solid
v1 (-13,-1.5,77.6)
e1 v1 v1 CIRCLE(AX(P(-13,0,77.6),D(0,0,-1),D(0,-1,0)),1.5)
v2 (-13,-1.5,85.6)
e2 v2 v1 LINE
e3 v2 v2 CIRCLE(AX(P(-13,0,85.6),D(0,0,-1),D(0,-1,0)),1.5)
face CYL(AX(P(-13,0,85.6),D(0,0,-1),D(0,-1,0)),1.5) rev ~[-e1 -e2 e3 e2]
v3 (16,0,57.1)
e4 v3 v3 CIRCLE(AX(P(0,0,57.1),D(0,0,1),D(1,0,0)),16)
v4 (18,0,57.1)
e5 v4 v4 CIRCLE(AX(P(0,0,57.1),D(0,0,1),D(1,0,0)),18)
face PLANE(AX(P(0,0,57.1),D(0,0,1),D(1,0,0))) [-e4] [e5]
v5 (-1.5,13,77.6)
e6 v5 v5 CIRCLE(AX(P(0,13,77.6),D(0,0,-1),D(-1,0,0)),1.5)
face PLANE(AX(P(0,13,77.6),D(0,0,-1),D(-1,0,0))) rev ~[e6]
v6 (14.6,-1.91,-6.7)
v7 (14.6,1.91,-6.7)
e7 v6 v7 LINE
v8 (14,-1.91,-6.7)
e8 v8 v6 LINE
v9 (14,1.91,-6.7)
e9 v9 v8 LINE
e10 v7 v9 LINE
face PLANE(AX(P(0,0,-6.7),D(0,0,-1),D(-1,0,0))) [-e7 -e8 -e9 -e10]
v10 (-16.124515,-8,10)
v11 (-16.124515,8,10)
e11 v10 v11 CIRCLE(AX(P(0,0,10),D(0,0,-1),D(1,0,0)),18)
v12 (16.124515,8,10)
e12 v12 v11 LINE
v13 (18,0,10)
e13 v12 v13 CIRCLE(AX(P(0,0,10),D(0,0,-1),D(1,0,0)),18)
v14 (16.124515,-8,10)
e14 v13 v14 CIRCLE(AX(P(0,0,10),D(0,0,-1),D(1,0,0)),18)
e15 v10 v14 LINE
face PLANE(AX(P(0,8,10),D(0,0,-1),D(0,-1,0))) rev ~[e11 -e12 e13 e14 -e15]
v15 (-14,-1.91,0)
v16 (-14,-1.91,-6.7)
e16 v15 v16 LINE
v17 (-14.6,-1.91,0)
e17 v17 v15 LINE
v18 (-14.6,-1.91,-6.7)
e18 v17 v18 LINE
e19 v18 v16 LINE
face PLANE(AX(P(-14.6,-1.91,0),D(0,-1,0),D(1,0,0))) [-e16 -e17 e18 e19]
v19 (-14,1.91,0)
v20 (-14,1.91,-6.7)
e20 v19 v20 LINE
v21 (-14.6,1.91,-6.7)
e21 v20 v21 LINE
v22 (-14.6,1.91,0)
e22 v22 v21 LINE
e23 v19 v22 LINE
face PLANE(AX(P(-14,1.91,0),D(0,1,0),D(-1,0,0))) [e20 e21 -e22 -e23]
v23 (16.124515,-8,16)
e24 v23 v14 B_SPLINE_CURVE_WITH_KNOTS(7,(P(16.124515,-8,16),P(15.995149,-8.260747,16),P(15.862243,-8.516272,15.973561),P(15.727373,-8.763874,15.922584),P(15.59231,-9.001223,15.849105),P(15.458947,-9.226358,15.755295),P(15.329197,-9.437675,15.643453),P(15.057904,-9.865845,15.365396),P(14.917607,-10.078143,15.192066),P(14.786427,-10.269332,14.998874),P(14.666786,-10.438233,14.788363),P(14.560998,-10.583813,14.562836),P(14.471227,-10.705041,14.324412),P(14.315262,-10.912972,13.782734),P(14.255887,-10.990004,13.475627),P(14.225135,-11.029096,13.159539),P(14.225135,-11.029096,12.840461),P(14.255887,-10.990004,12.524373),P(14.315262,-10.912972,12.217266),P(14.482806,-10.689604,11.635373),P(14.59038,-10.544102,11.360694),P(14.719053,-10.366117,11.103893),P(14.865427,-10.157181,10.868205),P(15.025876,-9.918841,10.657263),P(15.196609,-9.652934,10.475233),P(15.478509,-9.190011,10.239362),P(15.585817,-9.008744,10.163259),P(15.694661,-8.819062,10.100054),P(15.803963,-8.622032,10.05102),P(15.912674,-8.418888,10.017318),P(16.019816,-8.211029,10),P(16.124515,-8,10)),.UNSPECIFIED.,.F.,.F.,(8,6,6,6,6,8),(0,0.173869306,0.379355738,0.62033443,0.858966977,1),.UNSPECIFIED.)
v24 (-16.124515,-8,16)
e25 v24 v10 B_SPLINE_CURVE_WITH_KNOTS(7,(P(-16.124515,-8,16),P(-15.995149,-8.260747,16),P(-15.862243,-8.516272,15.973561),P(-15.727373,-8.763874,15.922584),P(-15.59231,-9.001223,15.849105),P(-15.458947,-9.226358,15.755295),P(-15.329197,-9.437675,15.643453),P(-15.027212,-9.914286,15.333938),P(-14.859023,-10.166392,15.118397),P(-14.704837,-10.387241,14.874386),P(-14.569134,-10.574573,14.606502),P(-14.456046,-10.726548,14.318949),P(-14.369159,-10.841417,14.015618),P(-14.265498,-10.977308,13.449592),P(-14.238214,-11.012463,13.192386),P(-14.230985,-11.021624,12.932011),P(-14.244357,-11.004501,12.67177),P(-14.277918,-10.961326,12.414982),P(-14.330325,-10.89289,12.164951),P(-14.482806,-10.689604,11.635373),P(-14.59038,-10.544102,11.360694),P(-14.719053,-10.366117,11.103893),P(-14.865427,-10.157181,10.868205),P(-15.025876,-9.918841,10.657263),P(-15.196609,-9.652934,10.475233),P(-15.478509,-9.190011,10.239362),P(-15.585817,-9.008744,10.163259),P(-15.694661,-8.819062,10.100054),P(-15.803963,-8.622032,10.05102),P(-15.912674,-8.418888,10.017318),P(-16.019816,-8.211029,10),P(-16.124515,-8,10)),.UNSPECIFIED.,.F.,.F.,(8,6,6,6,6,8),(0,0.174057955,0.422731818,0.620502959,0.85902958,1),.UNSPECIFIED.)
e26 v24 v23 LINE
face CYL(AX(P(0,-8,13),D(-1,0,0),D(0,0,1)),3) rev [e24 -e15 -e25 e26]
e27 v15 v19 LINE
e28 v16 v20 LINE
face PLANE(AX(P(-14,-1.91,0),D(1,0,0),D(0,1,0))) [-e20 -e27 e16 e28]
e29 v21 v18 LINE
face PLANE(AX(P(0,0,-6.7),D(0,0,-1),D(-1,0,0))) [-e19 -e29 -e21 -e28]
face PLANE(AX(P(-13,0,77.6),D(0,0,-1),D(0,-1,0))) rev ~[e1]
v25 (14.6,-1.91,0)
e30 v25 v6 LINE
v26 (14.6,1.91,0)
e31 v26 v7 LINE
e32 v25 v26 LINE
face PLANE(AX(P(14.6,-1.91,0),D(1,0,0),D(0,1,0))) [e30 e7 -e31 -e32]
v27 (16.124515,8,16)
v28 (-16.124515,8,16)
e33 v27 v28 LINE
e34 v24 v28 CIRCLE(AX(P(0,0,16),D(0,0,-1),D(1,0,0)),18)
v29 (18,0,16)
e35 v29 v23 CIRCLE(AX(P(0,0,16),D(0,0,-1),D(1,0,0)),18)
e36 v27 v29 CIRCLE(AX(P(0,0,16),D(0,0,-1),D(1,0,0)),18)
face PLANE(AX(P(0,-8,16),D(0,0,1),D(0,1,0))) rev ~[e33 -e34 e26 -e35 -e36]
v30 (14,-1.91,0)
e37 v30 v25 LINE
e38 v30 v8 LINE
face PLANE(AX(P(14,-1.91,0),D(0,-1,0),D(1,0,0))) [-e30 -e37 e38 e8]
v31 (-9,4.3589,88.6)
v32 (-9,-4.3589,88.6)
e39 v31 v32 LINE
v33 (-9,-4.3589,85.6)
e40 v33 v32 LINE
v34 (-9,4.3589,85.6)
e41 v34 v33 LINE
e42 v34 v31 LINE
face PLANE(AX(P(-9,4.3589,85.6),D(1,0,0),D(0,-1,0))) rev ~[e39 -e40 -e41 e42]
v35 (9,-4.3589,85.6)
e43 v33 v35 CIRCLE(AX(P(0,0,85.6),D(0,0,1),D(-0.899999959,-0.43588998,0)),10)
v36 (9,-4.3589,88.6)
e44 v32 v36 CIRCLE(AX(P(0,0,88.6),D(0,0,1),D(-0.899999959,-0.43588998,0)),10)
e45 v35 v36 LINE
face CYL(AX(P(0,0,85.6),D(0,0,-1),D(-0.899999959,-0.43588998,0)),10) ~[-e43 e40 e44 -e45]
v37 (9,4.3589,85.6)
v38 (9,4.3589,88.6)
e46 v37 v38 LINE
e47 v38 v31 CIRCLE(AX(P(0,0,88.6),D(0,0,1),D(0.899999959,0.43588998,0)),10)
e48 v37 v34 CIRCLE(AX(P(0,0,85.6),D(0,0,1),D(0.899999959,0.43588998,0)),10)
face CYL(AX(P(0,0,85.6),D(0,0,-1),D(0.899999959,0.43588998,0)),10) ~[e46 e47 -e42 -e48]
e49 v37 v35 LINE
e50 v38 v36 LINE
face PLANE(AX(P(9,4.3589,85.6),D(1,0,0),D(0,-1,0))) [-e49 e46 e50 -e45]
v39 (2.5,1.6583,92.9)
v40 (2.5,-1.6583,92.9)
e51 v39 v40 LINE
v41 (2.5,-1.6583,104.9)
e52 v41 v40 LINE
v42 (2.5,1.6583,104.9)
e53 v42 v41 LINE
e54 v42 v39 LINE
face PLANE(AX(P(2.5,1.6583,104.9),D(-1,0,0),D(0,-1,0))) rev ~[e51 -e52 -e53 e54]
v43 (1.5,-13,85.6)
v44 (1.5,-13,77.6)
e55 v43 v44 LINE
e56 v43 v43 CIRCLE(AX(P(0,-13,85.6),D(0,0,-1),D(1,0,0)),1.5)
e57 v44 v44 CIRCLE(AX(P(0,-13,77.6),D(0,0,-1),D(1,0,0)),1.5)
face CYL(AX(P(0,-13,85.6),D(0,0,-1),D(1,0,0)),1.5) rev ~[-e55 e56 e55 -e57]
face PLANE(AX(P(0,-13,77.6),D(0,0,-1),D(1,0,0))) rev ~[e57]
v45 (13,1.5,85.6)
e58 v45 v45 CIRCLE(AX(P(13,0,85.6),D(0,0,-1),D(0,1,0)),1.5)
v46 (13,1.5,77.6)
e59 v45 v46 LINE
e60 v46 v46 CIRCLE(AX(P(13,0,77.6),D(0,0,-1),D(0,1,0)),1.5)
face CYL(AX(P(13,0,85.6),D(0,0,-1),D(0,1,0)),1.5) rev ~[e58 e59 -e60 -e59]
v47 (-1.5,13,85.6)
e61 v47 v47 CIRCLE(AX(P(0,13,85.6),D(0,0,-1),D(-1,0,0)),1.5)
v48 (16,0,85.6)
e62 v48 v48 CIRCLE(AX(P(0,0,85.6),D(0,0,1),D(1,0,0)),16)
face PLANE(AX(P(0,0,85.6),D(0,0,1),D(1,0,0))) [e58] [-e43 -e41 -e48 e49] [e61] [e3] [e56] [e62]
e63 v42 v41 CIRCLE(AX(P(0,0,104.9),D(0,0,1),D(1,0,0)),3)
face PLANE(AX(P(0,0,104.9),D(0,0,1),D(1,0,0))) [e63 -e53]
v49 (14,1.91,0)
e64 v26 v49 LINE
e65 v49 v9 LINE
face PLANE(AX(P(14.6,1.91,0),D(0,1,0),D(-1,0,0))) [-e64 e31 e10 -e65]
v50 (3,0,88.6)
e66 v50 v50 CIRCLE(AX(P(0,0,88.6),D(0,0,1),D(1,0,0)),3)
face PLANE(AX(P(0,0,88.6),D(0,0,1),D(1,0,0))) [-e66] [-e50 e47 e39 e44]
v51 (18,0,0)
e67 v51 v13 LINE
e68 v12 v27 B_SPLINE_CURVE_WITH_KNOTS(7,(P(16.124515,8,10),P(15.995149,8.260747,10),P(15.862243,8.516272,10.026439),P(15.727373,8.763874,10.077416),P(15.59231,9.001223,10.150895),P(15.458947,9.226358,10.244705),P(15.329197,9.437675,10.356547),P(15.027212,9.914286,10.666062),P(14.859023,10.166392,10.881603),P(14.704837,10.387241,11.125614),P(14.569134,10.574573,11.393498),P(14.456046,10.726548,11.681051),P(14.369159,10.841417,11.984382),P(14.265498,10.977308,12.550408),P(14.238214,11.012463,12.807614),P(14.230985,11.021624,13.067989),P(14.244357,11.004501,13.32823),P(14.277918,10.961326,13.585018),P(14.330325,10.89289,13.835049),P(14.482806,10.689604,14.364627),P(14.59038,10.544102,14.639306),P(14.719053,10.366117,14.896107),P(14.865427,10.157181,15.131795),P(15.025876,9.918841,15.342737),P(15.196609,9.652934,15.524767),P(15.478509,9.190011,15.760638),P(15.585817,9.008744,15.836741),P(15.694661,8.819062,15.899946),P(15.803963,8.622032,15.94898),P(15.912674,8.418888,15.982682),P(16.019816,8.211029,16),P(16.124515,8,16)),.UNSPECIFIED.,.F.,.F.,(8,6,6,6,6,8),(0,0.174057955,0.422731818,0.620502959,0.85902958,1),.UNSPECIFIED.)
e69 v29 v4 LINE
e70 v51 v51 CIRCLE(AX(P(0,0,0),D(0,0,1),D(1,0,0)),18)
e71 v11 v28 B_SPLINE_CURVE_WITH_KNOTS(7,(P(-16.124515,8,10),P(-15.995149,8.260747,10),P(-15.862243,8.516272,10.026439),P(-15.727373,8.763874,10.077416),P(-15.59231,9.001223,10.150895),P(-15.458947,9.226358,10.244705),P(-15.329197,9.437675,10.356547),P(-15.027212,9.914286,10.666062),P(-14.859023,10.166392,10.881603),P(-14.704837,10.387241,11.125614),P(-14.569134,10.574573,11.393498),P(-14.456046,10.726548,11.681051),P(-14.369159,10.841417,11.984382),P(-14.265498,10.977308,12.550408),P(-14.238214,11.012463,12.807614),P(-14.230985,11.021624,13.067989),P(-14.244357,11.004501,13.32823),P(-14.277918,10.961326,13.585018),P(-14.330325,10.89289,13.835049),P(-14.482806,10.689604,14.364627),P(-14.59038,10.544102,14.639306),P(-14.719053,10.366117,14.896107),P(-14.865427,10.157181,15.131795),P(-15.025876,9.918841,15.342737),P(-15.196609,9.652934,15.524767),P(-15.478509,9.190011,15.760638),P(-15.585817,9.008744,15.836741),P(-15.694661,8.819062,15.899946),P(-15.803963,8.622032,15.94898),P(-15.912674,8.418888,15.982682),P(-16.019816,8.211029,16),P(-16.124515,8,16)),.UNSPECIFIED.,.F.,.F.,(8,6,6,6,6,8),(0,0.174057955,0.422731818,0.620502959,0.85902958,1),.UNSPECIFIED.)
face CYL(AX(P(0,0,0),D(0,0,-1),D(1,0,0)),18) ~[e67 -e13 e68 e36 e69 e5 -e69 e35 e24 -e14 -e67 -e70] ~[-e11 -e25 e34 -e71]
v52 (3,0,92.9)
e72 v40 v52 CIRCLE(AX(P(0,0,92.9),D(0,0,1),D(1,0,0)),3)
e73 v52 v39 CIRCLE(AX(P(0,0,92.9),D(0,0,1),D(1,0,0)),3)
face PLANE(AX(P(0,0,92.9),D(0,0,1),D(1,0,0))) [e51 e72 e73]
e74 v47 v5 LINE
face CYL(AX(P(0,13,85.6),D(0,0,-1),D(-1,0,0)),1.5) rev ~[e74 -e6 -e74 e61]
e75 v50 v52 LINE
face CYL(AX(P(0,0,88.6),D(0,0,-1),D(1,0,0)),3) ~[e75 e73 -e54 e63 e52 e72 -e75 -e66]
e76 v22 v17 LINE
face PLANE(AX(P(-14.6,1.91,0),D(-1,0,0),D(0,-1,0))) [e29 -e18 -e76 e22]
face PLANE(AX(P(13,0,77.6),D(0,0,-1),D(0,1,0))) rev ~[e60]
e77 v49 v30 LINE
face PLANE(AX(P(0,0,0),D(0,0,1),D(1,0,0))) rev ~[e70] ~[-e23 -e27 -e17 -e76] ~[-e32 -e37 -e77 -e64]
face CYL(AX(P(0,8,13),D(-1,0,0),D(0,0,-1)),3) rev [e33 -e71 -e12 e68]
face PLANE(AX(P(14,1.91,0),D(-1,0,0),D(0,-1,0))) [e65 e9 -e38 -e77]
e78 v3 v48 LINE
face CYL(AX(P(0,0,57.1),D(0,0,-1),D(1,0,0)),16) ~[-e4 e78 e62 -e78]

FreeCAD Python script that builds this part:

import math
import FreeCAD as App
import Part
import Sketcher

V = App.Vector
Q = App.Units.Quantity

doc = App.newDocument("Part")
body = doc.addObject("PartDesign::Body", "Body")

# Sketch on XY plane
sketch1 = body.newObject("Sketcher::SketchObject", "Sketch")
sketch1.AttachmentSupport = (doc.getObject("XY_Plane"), [""])
sketch1.MapMode = "FlatFace"
sketch1.addGeometry(Part.Circle(V(0, 0, 0), V(0, 0, 1), 18), False)
sketch1.addConstraint([
    Sketcher.Constraint("Coincident", 0, 3, -1, 1),
    Sketcher.Constraint("Diameter", 0, Q("36 mm")),
])
pad1 = body.newObject("PartDesign::Pad", "Pad")
pad1.Profile = sketch1
pad1.Length = 57.1

# Sketch on XY plane
sketch2 = body.newObject("Sketcher::SketchObject", "Sketch001")
sketch2.AttachmentSupport = (doc.getObject("XY_Plane"), [""])
sketch2.MapMode = "FlatFace"
sketch2.AttachmentOffset = App.Placement(V(0, 0, 57.1), App.Rotation())
sketch2.addGeometry(Part.Circle(V(0, 0, 0), V(0, 0, 1), 16), False)
sketch2.addConstraint([
    Sketcher.Constraint("Coincident", 0, 3, -1, 1),
    Sketcher.Constraint("Diameter", 0, Q("32 mm")),
])
pad2 = body.newObject("PartDesign::Pad", "Pad001")
pad2.Profile = sketch2
pad2.Length = 28.5

# Sketch on XY plane
sketch3 = body.newObject("Sketcher::SketchObject", "Sketch002")
sketch3.AttachmentSupport = (doc.getObject("XY_Plane"), [""])
sketch3.MapMode = "FlatFace"
sketch3.AttachmentOffset = App.Placement(V(0, 0, 85.6), App.Rotation())
sketch3.addGeometry([
    Part.ArcOfCircle(Part.Circle(V(0, 0, 0), V(0, 0, 1), 10), math.radians(26), math.radians(154)),
    Part.LineSegment(V(-9, 4, 0), V(-9, -4, 0)),
    Part.ArcOfCircle(Part.Circle(V(0, 0, 0), V(0, 0, 1), 10), math.radians(-154), math.radians(-26)),
    Part.LineSegment(V(9, -4, 0), V(9, 4, 0)),
], False)
sketch3.addConstraint([
    Sketcher.Constraint("Coincident", 0, 2, 1, 1),
    Sketcher.Constraint("Coincident", 1, 2, 2, 1),
    Sketcher.Constraint("Coincident", 2, 2, 3, 1),
    Sketcher.Constraint("Coincident", 3, 2, 0, 1),
    Sketcher.Constraint("Vertical", 1),
    Sketcher.Constraint("Vertical", 3),
    Sketcher.Constraint("Coincident", 0, 3, -1, 1),
    Sketcher.Constraint("Coincident", 2, 3, -1, 1),
    Sketcher.Constraint("Equal", 0, 2),
    Sketcher.Constraint("Horizontal", 1, 2, 2, 2),
    Sketcher.Constraint("Radius", 0, Q("10 mm")),
    Sketcher.Constraint("DistanceX", 0, 2, -1, 1, Q("9 mm")),
])
pad3 = body.newObject("PartDesign::Pad", "Pad002")
pad3.Profile = sketch3
pad3.Length = 3

# Sketch on XY plane
sketch4 = body.newObject("Sketcher::SketchObject", "Sketch003")
sketch4.AttachmentSupport = (doc.getObject("XY_Plane"), [""])
sketch4.MapMode = "FlatFace"
sketch4.AttachmentOffset = App.Placement(V(0, 0, 88.6), App.Rotation())
sketch4.addGeometry(Part.Circle(V(0, 0, 0), V(0, 0, 1), 3), False)
sketch4.addConstraint([
    Sketcher.Constraint("Coincident", 0, 3, -1, 1),
    Sketcher.Constraint("Diameter", 0, Q("6 mm")),
])
pad4 = body.newObject("PartDesign::Pad", "Pad003")
pad4.Profile = sketch4
pad4.Length = 16.3

# Sketch on XY plane
sketch5 = body.newObject("Sketcher::SketchObject", "Sketch004")
sketch5.AttachmentSupport = (doc.getObject("XY_Plane"), [""])
sketch5.MapMode = "FlatFace"
sketch5.AttachmentOffset = App.Placement(V(0, 0, 104.9), App.Rotation())
sketch5.addGeometry([
    Part.ArcOfCircle(Part.Circle(V(0, 0, 0), V(0, 0, 1), 3), math.radians(-34), math.radians(34)),
    Part.LineSegment(V(2.5, -1.7, 0), V(2.5, 1.7, 0)),
], False)
sketch5.addConstraint([
    Sketcher.Constraint("Coincident", 0, 1, 1, 1),
    Sketcher.Constraint("Coincident", 1, 2, 0, 2),
    Sketcher.Constraint("Vertical", 1),
    Sketcher.Constraint("Coincident", 0, 3, -1, 1),
    Sketcher.Constraint("Radius", 0, Q("3 mm")),
    Sketcher.Constraint("DistanceX", -1, 1, 0, 1, Q("2.5 mm")),
])
pocket1 = body.newObject("PartDesign::Pocket", "Pocket")
pocket1.Profile = sketch5
pocket1.Length = 12

# Sketch on XY plane
sketch6 = body.newObject("Sketcher::SketchObject", "Sketch005")
sketch6.AttachmentSupport = (doc.getObject("XY_Plane"), [""])
sketch6.MapMode = "FlatFace"
sketch6.AttachmentOffset = App.Placement(V(0, 0, 85.6), App.Rotation())
sketch6.addGeometry(Part.Circle(V(-13, 0, 0), V(0, 0, 1), 1.5), False)
sketch6.addConstraint([
    Sketcher.Constraint("PointOnObject", 0, 3, -1),
    Sketcher.Constraint("Diameter", 0, Q("3 mm")),
    Sketcher.Constraint("DistanceX", 0, 3, -1, 1, Q("13 mm")),
])
doc.recompute()
hole = body.newObject("PartDesign::Hole", "Hole")
hole.Profile = sketch6
hole.ThreadType = "None"
hole.Diameter = 3
hole.DepthType = "Dimension"
hole.Depth = 8
hole.DrillPoint = "Flat"
doc.recompute()

polarpattern = body.newObject("PartDesign::PolarPattern", "PolarPattern")
polarpattern.Originals = [hole]
polarpattern.Axis = (doc.getObject("Z_Axis"), [""])
polarpattern.Angle = 360
polarpattern.Occurrences = 4
body.Tip = polarpattern

# Sketch on XY plane
sketch7 = body.newObject("Sketcher::SketchObject", "Sketch006")
sketch7.AttachmentSupport = (doc.getObject("XY_Plane"), [""])
sketch7.MapMode = "FlatFace"
sketch7.addGeometry([
    Part.LineSegment(V(14, 1.9, 0), V(14.6, 1.9, 0)),  # 0
    Part.LineSegment(V(14.6, 1.9, 0), V(14.6, -1.9, 0)),  # 1
    Part.LineSegment(V(14.6, -1.9, 0), V(14, -1.9, 0)),  # 2
    Part.LineSegment(V(14, -1.9, 0), V(14, 1.9, 0)),  # 3
    Part.LineSegment(V(-14.6, 1.9, 0), V(-14, 1.9, 0)),  # 4
    Part.LineSegment(V(-14, 1.9, 0), V(-14, -1.9, 0)),  # 5
    Part.LineSegment(V(-14, -1.9, 0), V(-14.6, -1.9, 0)),  # 6
    Part.LineSegment(V(-14.6, -1.9, 0), V(-14.6, 1.9, 0)),  # 7
], False)
sketch7.addConstraint([
    Sketcher.Constraint("Coincident", 0, 2, 1, 1),
    Sketcher.Constraint("Coincident", 1, 2, 2, 1),
    Sketcher.Constraint("Coincident", 2, 2, 3, 1),
    Sketcher.Constraint("Coincident", 3, 2, 0, 1),
    Sketcher.Constraint("Coincident", 4, 2, 5, 1),
    Sketcher.Constraint("Coincident", 5, 2, 6, 1),
    Sketcher.Constraint("Coincident", 6, 2, 7, 1),
    Sketcher.Constraint("Coincident", 7, 2, 4, 1),
    Sketcher.Constraint("Horizontal", 0),
    Sketcher.Constraint("Vertical", 1),
    Sketcher.Constraint("Horizontal", 2),
    Sketcher.Constraint("Vertical", 3),
    Sketcher.Constraint("Horizontal", 4),
    Sketcher.Constraint("Vertical", 5),
    Sketcher.Constraint("Horizontal", 6),
    Sketcher.Constraint("Vertical", 7),
    Sketcher.Constraint("Symmetric", 2, 2, 4, 2, -1, 1),
    Sketcher.Constraint("Symmetric", 0, 2, 6, 2, -1, 1),
    Sketcher.Constraint("Horizontal", 3, 2, 4, 2),
    Sketcher.Constraint("DistanceX", 0, 1, 0, 2, Q("0.6 mm")),
    Sketcher.Constraint("DistanceX", -1, 1, 2, 2, Q("14 mm")),
    Sketcher.Constraint("DistanceY", 1, 2, 1, 1, Q("3.82 mm")),
])
pad5 = body.newObject("PartDesign::Pad", "Pad004")
pad5.Profile = sketch7
pad5.Length = 6.7
pad5.Reversed = True

# Sketch on YZ plane
sketch8 = body.newObject("Sketcher::SketchObject", "Sketch007")
sketch8.AttachmentSupport = (doc.getObject("YZ_Plane"), [""])
sketch8.MapMode = "FlatFace"
sketch8.addGeometry([
    Part.LineSegment(V(8, 16, 0), V(-8, 16, 0)),
    Part.ArcOfCircle(Part.Circle(V(-8, 13, 0), V(0, 0, 1), 3), math.radians(90), math.radians(270)),
    Part.LineSegment(V(-8, 10, 0), V(8, 10, 0)),
    Part.ArcOfCircle(Part.Circle(V(8, 13, 0), V(0, 0, 1), 3), math.radians(-90), math.radians(90)),
], False)
sketch8.addConstraint([
    Sketcher.Constraint("Tangent", 0, 2, 1, 1),
    Sketcher.Constraint("Tangent", 1, 2, 2, 1),
    Sketcher.Constraint("Tangent", 2, 2, 3, 1),
    Sketcher.Constraint("Tangent", 3, 2, 0, 1),
    Sketcher.Constraint("Horizontal", 0),
    Sketcher.Constraint("Horizontal", 2),
    Sketcher.Constraint("Radius", 1, Q("3 mm")),
    Sketcher.Constraint("DistanceX", 0, 2, 0, 1, Q("16 mm")),
    Sketcher.Constraint("DistanceX", 1, 3, -1, 1, Q("8 mm")),
    Sketcher.Constraint("DistanceY", -1, 1, 0, 2, Q("16 mm")),
])
pocket2 = body.newObject("PartDesign::Pocket", "Pocket001")
pocket2.Profile = sketch8
pocket2.Type = "ThroughAll"
pocket2.Midplane = True

doc.recompute()
